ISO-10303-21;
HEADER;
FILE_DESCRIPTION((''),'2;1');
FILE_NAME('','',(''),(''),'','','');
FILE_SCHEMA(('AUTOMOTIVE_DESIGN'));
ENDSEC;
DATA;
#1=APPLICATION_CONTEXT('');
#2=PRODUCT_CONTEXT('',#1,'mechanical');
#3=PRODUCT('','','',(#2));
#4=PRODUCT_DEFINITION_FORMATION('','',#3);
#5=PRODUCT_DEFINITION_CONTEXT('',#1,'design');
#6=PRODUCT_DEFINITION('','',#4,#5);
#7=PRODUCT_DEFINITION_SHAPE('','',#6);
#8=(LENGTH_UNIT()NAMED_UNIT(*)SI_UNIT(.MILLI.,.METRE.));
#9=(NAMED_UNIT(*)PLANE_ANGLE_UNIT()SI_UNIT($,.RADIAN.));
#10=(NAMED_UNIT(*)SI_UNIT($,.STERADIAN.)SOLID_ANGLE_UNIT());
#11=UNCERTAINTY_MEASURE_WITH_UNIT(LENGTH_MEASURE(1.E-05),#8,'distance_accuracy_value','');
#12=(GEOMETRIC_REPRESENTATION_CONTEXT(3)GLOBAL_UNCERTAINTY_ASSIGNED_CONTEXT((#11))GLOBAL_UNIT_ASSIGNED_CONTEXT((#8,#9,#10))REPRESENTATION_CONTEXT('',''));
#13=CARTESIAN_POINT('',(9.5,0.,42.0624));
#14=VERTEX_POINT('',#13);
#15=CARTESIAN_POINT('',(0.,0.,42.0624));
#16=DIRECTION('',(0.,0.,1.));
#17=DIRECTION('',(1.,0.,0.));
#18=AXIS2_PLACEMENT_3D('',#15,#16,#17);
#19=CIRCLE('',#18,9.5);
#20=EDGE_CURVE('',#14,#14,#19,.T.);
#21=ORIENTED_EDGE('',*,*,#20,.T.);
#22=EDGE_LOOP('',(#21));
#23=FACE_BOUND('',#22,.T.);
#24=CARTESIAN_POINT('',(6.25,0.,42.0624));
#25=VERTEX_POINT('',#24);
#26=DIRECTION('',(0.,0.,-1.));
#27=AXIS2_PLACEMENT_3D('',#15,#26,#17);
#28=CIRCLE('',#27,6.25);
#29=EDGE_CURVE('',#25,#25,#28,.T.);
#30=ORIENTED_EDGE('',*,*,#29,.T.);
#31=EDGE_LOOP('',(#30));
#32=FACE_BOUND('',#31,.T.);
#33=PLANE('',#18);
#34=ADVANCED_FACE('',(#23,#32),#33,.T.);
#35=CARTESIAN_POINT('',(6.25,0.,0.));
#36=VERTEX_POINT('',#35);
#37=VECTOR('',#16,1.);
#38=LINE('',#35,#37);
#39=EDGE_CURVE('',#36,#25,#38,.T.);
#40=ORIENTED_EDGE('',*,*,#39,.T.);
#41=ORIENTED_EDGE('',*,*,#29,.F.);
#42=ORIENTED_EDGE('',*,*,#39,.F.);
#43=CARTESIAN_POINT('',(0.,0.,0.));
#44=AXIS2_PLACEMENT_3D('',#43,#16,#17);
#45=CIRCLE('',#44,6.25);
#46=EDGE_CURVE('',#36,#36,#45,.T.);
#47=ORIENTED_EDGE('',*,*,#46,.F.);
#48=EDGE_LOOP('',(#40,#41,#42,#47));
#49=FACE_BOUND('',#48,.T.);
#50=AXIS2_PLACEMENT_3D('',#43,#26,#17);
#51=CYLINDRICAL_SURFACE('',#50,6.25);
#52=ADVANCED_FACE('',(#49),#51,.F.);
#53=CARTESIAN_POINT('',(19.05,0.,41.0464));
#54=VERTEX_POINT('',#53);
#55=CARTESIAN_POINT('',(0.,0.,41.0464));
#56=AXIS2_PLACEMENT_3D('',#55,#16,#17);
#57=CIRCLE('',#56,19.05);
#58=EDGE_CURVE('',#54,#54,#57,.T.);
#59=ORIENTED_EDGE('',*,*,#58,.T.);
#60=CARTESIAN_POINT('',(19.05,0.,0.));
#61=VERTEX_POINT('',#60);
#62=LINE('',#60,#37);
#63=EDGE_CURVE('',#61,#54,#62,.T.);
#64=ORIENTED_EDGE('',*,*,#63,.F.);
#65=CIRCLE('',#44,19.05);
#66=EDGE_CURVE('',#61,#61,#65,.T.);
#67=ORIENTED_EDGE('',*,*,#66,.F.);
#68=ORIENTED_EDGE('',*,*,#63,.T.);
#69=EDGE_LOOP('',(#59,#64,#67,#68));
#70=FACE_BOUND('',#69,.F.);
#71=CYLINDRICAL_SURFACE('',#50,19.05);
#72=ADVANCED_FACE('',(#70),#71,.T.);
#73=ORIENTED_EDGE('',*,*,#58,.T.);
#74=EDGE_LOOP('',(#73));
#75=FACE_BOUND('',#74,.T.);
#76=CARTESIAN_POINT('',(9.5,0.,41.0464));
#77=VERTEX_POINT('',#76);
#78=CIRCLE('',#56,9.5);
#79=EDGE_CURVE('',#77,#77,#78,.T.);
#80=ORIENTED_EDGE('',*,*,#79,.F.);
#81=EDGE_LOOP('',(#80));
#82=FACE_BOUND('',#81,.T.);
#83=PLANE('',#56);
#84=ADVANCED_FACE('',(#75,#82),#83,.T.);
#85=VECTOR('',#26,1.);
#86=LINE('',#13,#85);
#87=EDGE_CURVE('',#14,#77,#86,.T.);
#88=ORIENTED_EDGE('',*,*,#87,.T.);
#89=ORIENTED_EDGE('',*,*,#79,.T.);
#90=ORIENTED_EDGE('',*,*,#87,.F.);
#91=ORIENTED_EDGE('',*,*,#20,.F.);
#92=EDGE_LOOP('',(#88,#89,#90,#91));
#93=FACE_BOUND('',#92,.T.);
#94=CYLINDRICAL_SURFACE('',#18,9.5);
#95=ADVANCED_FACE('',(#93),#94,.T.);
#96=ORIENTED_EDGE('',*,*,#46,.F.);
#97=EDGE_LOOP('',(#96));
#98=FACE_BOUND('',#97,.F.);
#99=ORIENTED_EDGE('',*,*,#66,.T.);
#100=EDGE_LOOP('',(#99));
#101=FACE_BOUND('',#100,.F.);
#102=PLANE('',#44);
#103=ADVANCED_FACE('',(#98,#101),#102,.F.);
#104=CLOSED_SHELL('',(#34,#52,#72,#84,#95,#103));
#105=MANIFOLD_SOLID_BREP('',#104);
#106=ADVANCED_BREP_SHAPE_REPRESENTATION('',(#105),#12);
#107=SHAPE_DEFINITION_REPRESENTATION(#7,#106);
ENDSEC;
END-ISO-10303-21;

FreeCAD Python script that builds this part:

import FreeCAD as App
import Part
import Sketcher
from FreeCAD import Vector
Q = App.Units.Quantity

doc = App.newDocument("Part")
body = doc.addObject("PartDesign::Body", "Body")

sketch1 = body.newObject("Sketcher::SketchObject", "Sketch")
sketch1.AttachmentSupport = (doc.getObject("XY_Plane"), [""])
sketch1.MapMode = "FlatFace"
sketch1.addGeometry(Part.Circle(Vector(0, 0, 0), Vector(0, 0, 1), 19), False)
sketch1.addGeometry(Part.Circle(Vector(0, 0, 0), Vector(0, 0, 1), 6), False)
sketch1.addConstraint(Sketcher.Constraint("Coincident", 0, 3, -1, 1))
sketch1.addConstraint(Sketcher.Constraint("Coincident", 1, 3, -1, 1))
sketch1.addConstraint(Sketcher.Constraint("Diameter", 0, Q("1.5 in")))
sketch1.addConstraint(Sketcher.Constraint("Diameter", 1, Q("12.5 mm")))
pad1 = body.newObject("PartDesign::Pad", "Pad")
pad1.Profile = sketch1
pad1.Length = Q("1.656 in")

sketch2 = body.newObject("Sketcher::SketchObject", "Sketch001")
sketch2.AttachmentSupport = (doc.getObject("XY_Plane"), [""])
sketch2.MapMode = "FlatFace"
sketch2.AttachmentOffset = App.Placement(Vector(0, 0, 1.656 * 25.4), App.Rotation())
sketch2.addGeometry(Part.Circle(Vector(0, 0, 0), Vector(0, 0, 1), 19), False)
sketch2.addGeometry(Part.Circle(Vector(0, 0, 0), Vector(0, 0, 1), 10), False)
sketch2.addConstraint(Sketcher.Constraint("Coincident", 0, 3, -1, 1))
sketch2.addConstraint(Sketcher.Constraint("Coincident", 1, 3, -1, 1))
sketch2.addConstraint(Sketcher.Constraint("Diameter", 0, Q("1.5 in")))
sketch2.addConstraint(Sketcher.Constraint("Diameter", 1, Q("19 mm")))
pocket1 = body.newObject("PartDesign::Pocket", "Pocket")
pocket1.Profile = sketch2
pocket1.Length = Q("0.04 in")

doc.recompute()
